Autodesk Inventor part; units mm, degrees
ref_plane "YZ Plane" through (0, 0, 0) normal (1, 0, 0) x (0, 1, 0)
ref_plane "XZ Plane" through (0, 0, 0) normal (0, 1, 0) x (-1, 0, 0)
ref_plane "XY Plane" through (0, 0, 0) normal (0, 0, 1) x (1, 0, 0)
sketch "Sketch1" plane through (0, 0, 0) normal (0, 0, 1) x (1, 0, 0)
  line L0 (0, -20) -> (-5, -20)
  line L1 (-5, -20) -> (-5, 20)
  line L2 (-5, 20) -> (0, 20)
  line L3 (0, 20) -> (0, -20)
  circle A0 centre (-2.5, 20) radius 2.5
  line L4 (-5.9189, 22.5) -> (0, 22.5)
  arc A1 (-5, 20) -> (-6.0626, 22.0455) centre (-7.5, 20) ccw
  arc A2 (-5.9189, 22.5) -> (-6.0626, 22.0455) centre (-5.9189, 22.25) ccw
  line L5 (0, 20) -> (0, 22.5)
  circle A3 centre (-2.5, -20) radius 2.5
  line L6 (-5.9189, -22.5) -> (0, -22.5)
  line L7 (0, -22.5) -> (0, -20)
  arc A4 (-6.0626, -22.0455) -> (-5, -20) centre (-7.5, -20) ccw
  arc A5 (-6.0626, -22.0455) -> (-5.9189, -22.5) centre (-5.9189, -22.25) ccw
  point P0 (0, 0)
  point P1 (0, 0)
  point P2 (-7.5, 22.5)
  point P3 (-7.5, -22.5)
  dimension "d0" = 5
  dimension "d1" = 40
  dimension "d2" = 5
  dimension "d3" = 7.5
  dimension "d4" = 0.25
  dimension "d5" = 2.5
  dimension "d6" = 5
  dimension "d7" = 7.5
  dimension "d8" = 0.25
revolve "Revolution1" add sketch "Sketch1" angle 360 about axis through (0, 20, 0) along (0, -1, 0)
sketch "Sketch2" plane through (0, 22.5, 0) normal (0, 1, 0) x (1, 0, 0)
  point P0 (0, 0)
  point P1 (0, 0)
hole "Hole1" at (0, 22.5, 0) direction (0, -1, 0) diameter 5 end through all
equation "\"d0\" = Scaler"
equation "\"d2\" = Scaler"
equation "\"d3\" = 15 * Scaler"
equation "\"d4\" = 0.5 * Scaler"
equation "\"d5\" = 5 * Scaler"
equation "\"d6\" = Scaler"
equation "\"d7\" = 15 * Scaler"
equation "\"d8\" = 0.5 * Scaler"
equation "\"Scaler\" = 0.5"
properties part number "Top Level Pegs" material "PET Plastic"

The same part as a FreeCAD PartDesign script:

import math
import FreeCAD as App
import Part
import Sketcher
from FreeCAD import Vector
Q = App.Units.Quantity

doc = App.newDocument("Part")
params = doc.addObject("Spreadsheet::Sheet", "Params")
for row, (alias, value) in enumerate([
    ("sketch1_radius", "2.5 mm"),
    ("sketch1_height", "40 mm"),
    ("sketch1_radius2", "0.25 mm"),
    ("revolution_angle", "360 deg"),
    ("sketch2_diameter", "5 mm"),
    ("hole_diameter", "5 mm"),
], start=1):
    params.set(f"A{row}", alias)
    params.set(f"B{row}", "=" + value)
    params.setAlias(f"B{row}", alias)

body = doc.addObject("PartDesign::Body", "Body")

# Sketch on XY plane
sketch1 = body.newObject("Sketcher::SketchObject", "Sketch")
sketch1.AttachmentSupport = (doc.getObject("XY_Plane"), [""])
sketch1.MapMode = "FlatFace"
sketch1.addGeometry([
    Part.LineSegment(Vector(0, -22.5, 0), Vector(0, 22.5, 0)),  # 0
    Part.LineSegment(Vector(0, 22.5, 0), Vector(-5.92, 22.5, 0)),  # 1
    Part.ArcOfCircle(Part.Circle(Vector(-5.92, 22.25, 0), Vector(0, 0, 1), 0.25), math.radians(90), math.radians(235)),  # 2
    Part.ArcOfCircle(Part.Circle(Vector(-7.5, 20, 0), Vector(0, 0, 1), 2.5), math.radians(0), math.radians(55)),  # 3
    Part.LineSegment(Vector(-5, 20, 0), Vector(-5, -20, 0)),  # 4
    Part.ArcOfCircle(Part.Circle(Vector(-7.5, -20, 0), Vector(0, 0, 1), 2.5), math.radians(-55), math.radians(0)),  # 5
    Part.ArcOfCircle(Part.Circle(Vector(-5.92, -22.25, 0), Vector(0, 0, 1), 0.25), math.radians(125), math.radians(270)),  # 6
    Part.LineSegment(Vector(-5.92, -22.5, 0), Vector(0, -22.5, 0)),  # 7
], False)
sketch1.addConstraint([
    Sketcher.Constraint("Coincident", 0, 2, 1, 1),
    Sketcher.Constraint("Tangent", 1, 2, 2, 1),
    Sketcher.Constraint("Tangent", 2, 2, 3, 2),
    Sketcher.Constraint("Tangent", 3, 1, 4, 1),
    Sketcher.Constraint("Tangent", 4, 2, 5, 2),
    Sketcher.Constraint("Tangent", 5, 1, 6, 1),
    Sketcher.Constraint("Tangent", 6, 2, 7, 1),
    Sketcher.Constraint("Coincident", 7, 2, 0, 1),
    Sketcher.Constraint("Vertical", 0),
    Sketcher.Constraint("Horizontal", 1),
    Sketcher.Constraint("Vertical", 4),
    Sketcher.Constraint("Horizontal", 7),
    Sketcher.Constraint("Equal", 3, 5),
    Sketcher.Constraint("Equal", 2, 6),
    Sketcher.Constraint("Symmetric", 0, 2, 7, 2, -1, 1),
    Sketcher.Constraint("Vertical", 2, 3, 6, 3),
    Sketcher.Constraint("Radius", 3, Q("2.5 mm")),
    Sketcher.Constraint("DistanceY", 4, 2, 4, 1, Q("40 mm")),
    Sketcher.Constraint("Radius", 2, Q("0.25 mm")),
    Sketcher.Constraint("DistanceX", 3, 1, -1, 1, Q("5 mm")),
    Sketcher.Constraint("DistanceY", 3, 3, 0, 2, Q("2.5 mm")),
])
sketch1.setExpression("Constraints[16]", "Params.sketch1_radius")
sketch1.setExpression("Constraints[17]", "Params.sketch1_height")
sketch1.setExpression("Constraints[18]", "Params.sketch1_radius2")
revolution = body.newObject("PartDesign::Revolution", "Revolution")
revolution.Profile = sketch1
revolution.ReferenceAxis = (sketch1, ["V_Axis"])
revolution.setExpression("Angle", "Params.revolution_angle")

# Sketch on XZ plane
sketch2 = body.newObject("Sketcher::SketchObject", "Sketch001")
sketch2.AttachmentSupport = (doc.getObject("XZ_Plane"), [""])
sketch2.MapMode = "FlatFace"
sketch2.AttachmentOffset = App.Placement(Vector(0, 0, -22.5), App.Rotation())
sketch2.addGeometry(Part.Circle(Vector(0, 0, 0), Vector(0, 0, 1), 2.5), False)
sketch2.addConstraint([
    Sketcher.Constraint("Coincident", 0, 3, -1, 1),
    Sketcher.Constraint("Diameter", 0, Q("5 mm")),
])
sketch2.setExpression("Constraints[1]", "Params.sketch2_diameter")
doc.recompute()
hole = body.newObject("PartDesign::Hole", "Hole")
hole.Profile = sketch2
hole.ThreadType = "None"
hole.setExpression("Diameter", "Params.hole_diameter")
hole.DepthType = "ThroughAll"
hole.Reversed = True

doc.recompute()
